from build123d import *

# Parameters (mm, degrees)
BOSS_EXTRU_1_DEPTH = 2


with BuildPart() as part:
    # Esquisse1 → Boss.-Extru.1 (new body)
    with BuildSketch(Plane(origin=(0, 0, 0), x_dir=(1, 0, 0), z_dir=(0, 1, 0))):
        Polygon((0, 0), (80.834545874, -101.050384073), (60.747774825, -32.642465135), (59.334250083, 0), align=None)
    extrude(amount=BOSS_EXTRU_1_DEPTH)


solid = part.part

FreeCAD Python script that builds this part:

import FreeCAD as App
import Part
import Sketcher
from FreeCAD import Vector
Q = App.Units.Quantity


def add_polygon(sketch, points):
    """Adds a closed chain of lines whose ends are joined by coincident constraints."""
    first, n = sketch.GeometryCount, len(points)
    for a, b in zip(points, points[1:] + points[:1]):
        sketch.addGeometry(Part.LineSegment(App.Vector(*a, 0), App.Vector(*b, 0)), False)
    for i in range(n):
        sketch.addConstraint(Sketcher.Constraint("Coincident", first + i, 2, first + (i + 1) % n, 1))

doc = App.newDocument("Part")
body = doc.addObject("PartDesign::Body", "Body")

# Sketch on XZ plane
sketch1 = doc.addObject("Sketcher::SketchObject", "Sketch")
body.addObject(sketch1)
sketch1.AttachmentSupport = (doc.XZ_Plane, [""])
sketch1.MapMode = "FlatFace"
add_polygon(sketch1, [(0, 0), (81, 101), (61, 33), (59, 0)])  # lines 0-3
sketch1.addConstraint(Sketcher.Constraint("Horizontal", 3))
sketch1.addConstraint(Sketcher.Constraint("Coincident", 3, 2, -1, 1))
sketch1.addConstraint(Sketcher.Constraint("DistanceX", 3, 2, 3, 1, Q("59.33425 mm")))
sketch1.addConstraint(Sketcher.Constraint("DistanceX", 1, 2, 0, 2, Q("20.086771 mm")))
sketch1.addConstraint(Sketcher.Constraint("DistanceY", 1, 2, 0, 2, Q("68.407919 mm")))
sketch1.addConstraint(Sketcher.Constraint("Distance", 0, Q("129.404034 mm")))
sketch1.addConstraint(Sketcher.Constraint("Distance", 2, Q("32.673056 mm")))
pad1 = doc.addObject("PartDesign::Pad", "Pad")
body.addObject(pad1)
pad1.Profile = sketch1
pad1.Length = 2
pad1.Reversed = True

doc.recompute()
